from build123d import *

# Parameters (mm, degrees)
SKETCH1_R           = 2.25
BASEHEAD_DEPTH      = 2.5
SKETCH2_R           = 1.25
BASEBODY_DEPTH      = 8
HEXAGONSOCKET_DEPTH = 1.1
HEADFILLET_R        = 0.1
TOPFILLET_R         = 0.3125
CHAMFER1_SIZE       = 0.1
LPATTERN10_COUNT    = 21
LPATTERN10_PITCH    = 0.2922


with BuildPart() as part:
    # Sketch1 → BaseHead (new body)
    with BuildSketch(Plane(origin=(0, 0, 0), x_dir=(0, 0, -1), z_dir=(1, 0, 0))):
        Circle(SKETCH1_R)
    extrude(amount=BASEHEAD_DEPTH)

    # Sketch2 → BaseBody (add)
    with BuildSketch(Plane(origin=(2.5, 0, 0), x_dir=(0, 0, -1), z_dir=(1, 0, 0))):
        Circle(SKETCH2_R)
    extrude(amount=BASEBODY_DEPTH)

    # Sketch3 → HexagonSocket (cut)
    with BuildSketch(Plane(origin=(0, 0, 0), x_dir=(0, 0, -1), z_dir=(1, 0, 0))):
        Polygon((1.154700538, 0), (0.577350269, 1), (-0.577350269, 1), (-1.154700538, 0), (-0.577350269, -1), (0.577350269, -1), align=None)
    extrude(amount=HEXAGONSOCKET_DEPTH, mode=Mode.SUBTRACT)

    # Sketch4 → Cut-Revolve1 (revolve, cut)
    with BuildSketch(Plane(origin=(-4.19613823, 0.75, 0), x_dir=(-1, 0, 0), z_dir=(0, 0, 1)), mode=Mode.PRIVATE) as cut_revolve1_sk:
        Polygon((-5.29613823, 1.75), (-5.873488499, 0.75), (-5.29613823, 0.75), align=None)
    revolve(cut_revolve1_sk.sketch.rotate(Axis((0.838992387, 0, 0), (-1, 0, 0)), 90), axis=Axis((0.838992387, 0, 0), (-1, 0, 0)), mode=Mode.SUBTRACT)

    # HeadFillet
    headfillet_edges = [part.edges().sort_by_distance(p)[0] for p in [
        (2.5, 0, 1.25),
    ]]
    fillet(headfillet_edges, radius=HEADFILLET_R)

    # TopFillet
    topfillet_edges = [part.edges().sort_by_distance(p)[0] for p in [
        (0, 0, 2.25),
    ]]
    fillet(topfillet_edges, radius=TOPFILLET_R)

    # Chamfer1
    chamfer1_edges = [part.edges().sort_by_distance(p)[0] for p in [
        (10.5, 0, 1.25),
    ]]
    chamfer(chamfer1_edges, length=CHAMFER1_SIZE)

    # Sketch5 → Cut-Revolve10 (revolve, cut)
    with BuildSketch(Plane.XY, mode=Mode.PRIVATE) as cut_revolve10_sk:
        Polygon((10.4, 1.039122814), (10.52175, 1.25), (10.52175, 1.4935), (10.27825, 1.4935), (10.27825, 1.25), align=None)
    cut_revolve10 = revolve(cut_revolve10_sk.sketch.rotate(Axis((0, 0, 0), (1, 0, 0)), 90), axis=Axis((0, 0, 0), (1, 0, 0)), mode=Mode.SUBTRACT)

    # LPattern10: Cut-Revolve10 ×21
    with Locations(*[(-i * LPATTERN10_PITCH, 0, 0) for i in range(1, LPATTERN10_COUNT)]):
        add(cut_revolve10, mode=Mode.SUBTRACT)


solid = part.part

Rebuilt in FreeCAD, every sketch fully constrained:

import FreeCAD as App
import Part
import Sketcher
Q = App.Units.Quantity


def edges_at(feature, points):
    """Names of the edges that pass closest to the given points."""
    edges = feature.Shape.Edges
    near = lambda p: min(range(len(edges)), key=lambda i: edges[i].distToShape(Part.Vertex(*p))[0])
    return sorted({f"Edge{near(p) + 1}" for p in points})


def add_polygon(sketch, points):
    """Adds a closed chain of lines whose ends are joined by coincident constraints."""
    first, n = sketch.GeometryCount, len(points)
    for a, b in zip(points, points[1:] + points[:1]):
        sketch.addGeometry(Part.LineSegment(App.Vector(*a, 0), App.Vector(*b, 0)), False)
    for i in range(n):
        sketch.addConstraint(Sketcher.Constraint("Coincident", first + i, 2, first + (i + 1) % n, 1))

doc = App.newDocument("Part")
body = doc.addObject("PartDesign::Body", "Body")

# Sketch on YZ plane
sketch1 = body.newObject("Sketcher::SketchObject", "Sketch")
sketch1.AttachmentSupport = (doc.getObject("YZ_Plane"), [""])
sketch1.MapMode = "FlatFace"
sketch1.addGeometry(Part.Circle(App.Vector(0, 0, 0), App.Vector(0, 0, 1), 2.2), False)
sketch1.addConstraint(Sketcher.Constraint("Coincident", 0, 3, -1, 1))
sketch1.addConstraint(Sketcher.Constraint("Diameter", 0, 4.5))
pad1 = body.newObject("PartDesign::Pad", "Pad")
pad1.Profile = sketch1
pad1.Length = 2.5

# Sketch on YZ plane
sketch2 = body.newObject("Sketcher::SketchObject", "Sketch001")
sketch2.AttachmentSupport = (doc.getObject("YZ_Plane"), [""])
sketch2.MapMode = "FlatFace"
sketch2.AttachmentOffset = App.Placement(App.Vector(0, 0, 2.5), App.Rotation())
sketch2.addGeometry(Part.Circle(App.Vector(0, 0, 0), App.Vector(0, 0, 1), 1.2), False)
sketch2.addConstraint(Sketcher.Constraint("Coincident", 0, 3, -1, 1))
sketch2.addConstraint(Sketcher.Constraint("Diameter", 0, 2.5))
pad2 = body.newObject("PartDesign::Pad", "Pad001")
pad2.Profile = sketch2
pad2.Length = 8

# Sketch on YZ plane
sketch3 = body.newObject("Sketcher::SketchObject", "Sketch002")
sketch3.AttachmentSupport = (doc.getObject("YZ_Plane"), [""])
sketch3.MapMode = "FlatFace"
add_polygon(sketch3, [(0, -1.2), (1, -0.6), (1, 0.6), (0, 1.2), (-1, 0.6), (-1, -0.6)])  # lines 0-5
sketch3.addConstraint(Sketcher.Constraint("Vertical", 1))
sketch3.addConstraint(Sketcher.Constraint("Vertical", 4))
sketch3.addConstraint(Sketcher.Constraint("Symmetric", 0, 2, 3, 2, -1, 1))
sketch3.addConstraint(Sketcher.Constraint("Symmetric", 2, 2, 5, 2, -1, 1))
sketch3.addConstraint(Sketcher.Constraint("PointOnObject", 2, 2, -2))
sketch3.addConstraint(Sketcher.Constraint("Parallel", 2, 5))
sketch3.addConstraint(Sketcher.Constraint("Horizontal", 1, 2, 3, 2))
sketch3.addConstraint(Sketcher.Constraint("Angle", 0, Q("30 deg")))
sketch3.addConstraint(Sketcher.Constraint("DistanceX", -1, 1, 0, 2, 1.0))
sketch3.addConstraint(Sketcher.Constraint("DistanceY", 1, 1, 1, 2, 1.154701))
pocket1 = body.newObject("PartDesign::Pocket", "Pocket")
pocket1.Profile = sketch3
pocket1.Length = 1.1
pocket1.Reversed = True

# Sketch on XY plane
sketch4 = body.newObject("Sketcher::SketchObject", "Sketch003")
sketch4.AttachmentSupport = (doc.getObject("XY_Plane"), [""])
sketch4.MapMode = "FlatFace"
add_polygon(sketch4, [(1.1, -1), (1.7, 0), (1.1, 0)])  # lines 0-2
sketch4.addConstraint(Sketcher.Constraint("Horizontal", 1))
sketch4.addConstraint(Sketcher.Constraint("Vertical", 2))
sketch4.addConstraint(Sketcher.Constraint("PointOnObject", 0, 2, -1))
sketch4.addConstraint(Sketcher.Constraint("DistanceY", 2, 2, 2, 1, 1.0))
sketch4.addConstraint(Sketcher.Constraint("Angle", 0, Q("60 deg")))
sketch4.addConstraint(Sketcher.Constraint("DistanceX", -1, 1, 1, 2, 1.1))
groove = body.newObject("PartDesign::Groove", "Groove")
groove.Profile = sketch4
groove.ReferenceAxis = (sketch4, ["H_Axis"])
groove.Angle = 360
doc.recompute()

fillet = body.newObject("PartDesign::Fillet", "Fillet")
fillet.Base = (groove, edges_at(groove, [(2.5, 0, 1.25)]))
fillet.Radius = 0.1
doc.recompute()

fillet2 = body.newObject("PartDesign::Fillet", "Fillet001")
fillet2.Base = (fillet, edges_at(fillet, [(0, 0, 2.25)]))
fillet2.Radius = 0.3125
doc.recompute()

chamfer = body.newObject("PartDesign::Chamfer", "Chamfer")
chamfer.Base = (fillet2, edges_at(fillet2, [(10.5, 0, 1.25)]))
chamfer.Size = 0.1

# Sketch on XY plane
sketch5 = body.newObject("Sketcher::SketchObject", "Sketch004")
sketch5.AttachmentSupport = (doc.getObject("XY_Plane"), [""])
sketch5.MapMode = "FlatFace"
add_polygon(sketch5, [(10.4, 1.04), (10.52, 1.25), (10.52, 1.49), (10.28, 1.49), (10.28, 1.25)])  # lines 0-4
sketch5.addConstraint(Sketcher.Constraint("Vertical", 1))
sketch5.addConstraint(Sketcher.Constraint("Horizontal", 2))
sketch5.addConstraint(Sketcher.Constraint("Vertical", 3))
sketch5.addConstraint(Sketcher.Constraint("Horizontal", 0, 2, 3, 2))
sketch5.addConstraint(Sketcher.Constraint("Equal", 2, 1))
sketch5.addConstraint(Sketcher.Constraint("Equal", 0, 4))
sketch5.addConstraint(Sketcher.Constraint("Angle", 0, Q("60 deg")))
sketch5.addConstraint(Sketcher.Constraint("DistanceX", -1, 1, 4, 2, 10.4))
sketch5.addConstraint(Sketcher.Constraint("DistanceY", -1, 1, 0, 2, 1.25))
sketch5.addConstraint(Sketcher.Constraint("DistanceX", 2, 2, 2, 1, 0.2435))
groove2 = body.newObject("PartDesign::Groove", "Groove001")
groove2.Profile = sketch5
groove2.ReferenceAxis = (sketch5, ["H_Axis"])
groove2.Angle = 360
doc.recompute()

linearpattern = body.newObject("PartDesign::LinearPattern", "LinearPattern")
linearpattern.Originals = [groove2]
linearpattern.Direction = (doc.getObject("X_Axis"), [""])
linearpattern.Mode = "offset"
linearpattern.Offset = 0.2922
linearpattern.Occurrences = 21
linearpattern.Reversed = True
body.Tip = linearpattern

doc.recompute()
